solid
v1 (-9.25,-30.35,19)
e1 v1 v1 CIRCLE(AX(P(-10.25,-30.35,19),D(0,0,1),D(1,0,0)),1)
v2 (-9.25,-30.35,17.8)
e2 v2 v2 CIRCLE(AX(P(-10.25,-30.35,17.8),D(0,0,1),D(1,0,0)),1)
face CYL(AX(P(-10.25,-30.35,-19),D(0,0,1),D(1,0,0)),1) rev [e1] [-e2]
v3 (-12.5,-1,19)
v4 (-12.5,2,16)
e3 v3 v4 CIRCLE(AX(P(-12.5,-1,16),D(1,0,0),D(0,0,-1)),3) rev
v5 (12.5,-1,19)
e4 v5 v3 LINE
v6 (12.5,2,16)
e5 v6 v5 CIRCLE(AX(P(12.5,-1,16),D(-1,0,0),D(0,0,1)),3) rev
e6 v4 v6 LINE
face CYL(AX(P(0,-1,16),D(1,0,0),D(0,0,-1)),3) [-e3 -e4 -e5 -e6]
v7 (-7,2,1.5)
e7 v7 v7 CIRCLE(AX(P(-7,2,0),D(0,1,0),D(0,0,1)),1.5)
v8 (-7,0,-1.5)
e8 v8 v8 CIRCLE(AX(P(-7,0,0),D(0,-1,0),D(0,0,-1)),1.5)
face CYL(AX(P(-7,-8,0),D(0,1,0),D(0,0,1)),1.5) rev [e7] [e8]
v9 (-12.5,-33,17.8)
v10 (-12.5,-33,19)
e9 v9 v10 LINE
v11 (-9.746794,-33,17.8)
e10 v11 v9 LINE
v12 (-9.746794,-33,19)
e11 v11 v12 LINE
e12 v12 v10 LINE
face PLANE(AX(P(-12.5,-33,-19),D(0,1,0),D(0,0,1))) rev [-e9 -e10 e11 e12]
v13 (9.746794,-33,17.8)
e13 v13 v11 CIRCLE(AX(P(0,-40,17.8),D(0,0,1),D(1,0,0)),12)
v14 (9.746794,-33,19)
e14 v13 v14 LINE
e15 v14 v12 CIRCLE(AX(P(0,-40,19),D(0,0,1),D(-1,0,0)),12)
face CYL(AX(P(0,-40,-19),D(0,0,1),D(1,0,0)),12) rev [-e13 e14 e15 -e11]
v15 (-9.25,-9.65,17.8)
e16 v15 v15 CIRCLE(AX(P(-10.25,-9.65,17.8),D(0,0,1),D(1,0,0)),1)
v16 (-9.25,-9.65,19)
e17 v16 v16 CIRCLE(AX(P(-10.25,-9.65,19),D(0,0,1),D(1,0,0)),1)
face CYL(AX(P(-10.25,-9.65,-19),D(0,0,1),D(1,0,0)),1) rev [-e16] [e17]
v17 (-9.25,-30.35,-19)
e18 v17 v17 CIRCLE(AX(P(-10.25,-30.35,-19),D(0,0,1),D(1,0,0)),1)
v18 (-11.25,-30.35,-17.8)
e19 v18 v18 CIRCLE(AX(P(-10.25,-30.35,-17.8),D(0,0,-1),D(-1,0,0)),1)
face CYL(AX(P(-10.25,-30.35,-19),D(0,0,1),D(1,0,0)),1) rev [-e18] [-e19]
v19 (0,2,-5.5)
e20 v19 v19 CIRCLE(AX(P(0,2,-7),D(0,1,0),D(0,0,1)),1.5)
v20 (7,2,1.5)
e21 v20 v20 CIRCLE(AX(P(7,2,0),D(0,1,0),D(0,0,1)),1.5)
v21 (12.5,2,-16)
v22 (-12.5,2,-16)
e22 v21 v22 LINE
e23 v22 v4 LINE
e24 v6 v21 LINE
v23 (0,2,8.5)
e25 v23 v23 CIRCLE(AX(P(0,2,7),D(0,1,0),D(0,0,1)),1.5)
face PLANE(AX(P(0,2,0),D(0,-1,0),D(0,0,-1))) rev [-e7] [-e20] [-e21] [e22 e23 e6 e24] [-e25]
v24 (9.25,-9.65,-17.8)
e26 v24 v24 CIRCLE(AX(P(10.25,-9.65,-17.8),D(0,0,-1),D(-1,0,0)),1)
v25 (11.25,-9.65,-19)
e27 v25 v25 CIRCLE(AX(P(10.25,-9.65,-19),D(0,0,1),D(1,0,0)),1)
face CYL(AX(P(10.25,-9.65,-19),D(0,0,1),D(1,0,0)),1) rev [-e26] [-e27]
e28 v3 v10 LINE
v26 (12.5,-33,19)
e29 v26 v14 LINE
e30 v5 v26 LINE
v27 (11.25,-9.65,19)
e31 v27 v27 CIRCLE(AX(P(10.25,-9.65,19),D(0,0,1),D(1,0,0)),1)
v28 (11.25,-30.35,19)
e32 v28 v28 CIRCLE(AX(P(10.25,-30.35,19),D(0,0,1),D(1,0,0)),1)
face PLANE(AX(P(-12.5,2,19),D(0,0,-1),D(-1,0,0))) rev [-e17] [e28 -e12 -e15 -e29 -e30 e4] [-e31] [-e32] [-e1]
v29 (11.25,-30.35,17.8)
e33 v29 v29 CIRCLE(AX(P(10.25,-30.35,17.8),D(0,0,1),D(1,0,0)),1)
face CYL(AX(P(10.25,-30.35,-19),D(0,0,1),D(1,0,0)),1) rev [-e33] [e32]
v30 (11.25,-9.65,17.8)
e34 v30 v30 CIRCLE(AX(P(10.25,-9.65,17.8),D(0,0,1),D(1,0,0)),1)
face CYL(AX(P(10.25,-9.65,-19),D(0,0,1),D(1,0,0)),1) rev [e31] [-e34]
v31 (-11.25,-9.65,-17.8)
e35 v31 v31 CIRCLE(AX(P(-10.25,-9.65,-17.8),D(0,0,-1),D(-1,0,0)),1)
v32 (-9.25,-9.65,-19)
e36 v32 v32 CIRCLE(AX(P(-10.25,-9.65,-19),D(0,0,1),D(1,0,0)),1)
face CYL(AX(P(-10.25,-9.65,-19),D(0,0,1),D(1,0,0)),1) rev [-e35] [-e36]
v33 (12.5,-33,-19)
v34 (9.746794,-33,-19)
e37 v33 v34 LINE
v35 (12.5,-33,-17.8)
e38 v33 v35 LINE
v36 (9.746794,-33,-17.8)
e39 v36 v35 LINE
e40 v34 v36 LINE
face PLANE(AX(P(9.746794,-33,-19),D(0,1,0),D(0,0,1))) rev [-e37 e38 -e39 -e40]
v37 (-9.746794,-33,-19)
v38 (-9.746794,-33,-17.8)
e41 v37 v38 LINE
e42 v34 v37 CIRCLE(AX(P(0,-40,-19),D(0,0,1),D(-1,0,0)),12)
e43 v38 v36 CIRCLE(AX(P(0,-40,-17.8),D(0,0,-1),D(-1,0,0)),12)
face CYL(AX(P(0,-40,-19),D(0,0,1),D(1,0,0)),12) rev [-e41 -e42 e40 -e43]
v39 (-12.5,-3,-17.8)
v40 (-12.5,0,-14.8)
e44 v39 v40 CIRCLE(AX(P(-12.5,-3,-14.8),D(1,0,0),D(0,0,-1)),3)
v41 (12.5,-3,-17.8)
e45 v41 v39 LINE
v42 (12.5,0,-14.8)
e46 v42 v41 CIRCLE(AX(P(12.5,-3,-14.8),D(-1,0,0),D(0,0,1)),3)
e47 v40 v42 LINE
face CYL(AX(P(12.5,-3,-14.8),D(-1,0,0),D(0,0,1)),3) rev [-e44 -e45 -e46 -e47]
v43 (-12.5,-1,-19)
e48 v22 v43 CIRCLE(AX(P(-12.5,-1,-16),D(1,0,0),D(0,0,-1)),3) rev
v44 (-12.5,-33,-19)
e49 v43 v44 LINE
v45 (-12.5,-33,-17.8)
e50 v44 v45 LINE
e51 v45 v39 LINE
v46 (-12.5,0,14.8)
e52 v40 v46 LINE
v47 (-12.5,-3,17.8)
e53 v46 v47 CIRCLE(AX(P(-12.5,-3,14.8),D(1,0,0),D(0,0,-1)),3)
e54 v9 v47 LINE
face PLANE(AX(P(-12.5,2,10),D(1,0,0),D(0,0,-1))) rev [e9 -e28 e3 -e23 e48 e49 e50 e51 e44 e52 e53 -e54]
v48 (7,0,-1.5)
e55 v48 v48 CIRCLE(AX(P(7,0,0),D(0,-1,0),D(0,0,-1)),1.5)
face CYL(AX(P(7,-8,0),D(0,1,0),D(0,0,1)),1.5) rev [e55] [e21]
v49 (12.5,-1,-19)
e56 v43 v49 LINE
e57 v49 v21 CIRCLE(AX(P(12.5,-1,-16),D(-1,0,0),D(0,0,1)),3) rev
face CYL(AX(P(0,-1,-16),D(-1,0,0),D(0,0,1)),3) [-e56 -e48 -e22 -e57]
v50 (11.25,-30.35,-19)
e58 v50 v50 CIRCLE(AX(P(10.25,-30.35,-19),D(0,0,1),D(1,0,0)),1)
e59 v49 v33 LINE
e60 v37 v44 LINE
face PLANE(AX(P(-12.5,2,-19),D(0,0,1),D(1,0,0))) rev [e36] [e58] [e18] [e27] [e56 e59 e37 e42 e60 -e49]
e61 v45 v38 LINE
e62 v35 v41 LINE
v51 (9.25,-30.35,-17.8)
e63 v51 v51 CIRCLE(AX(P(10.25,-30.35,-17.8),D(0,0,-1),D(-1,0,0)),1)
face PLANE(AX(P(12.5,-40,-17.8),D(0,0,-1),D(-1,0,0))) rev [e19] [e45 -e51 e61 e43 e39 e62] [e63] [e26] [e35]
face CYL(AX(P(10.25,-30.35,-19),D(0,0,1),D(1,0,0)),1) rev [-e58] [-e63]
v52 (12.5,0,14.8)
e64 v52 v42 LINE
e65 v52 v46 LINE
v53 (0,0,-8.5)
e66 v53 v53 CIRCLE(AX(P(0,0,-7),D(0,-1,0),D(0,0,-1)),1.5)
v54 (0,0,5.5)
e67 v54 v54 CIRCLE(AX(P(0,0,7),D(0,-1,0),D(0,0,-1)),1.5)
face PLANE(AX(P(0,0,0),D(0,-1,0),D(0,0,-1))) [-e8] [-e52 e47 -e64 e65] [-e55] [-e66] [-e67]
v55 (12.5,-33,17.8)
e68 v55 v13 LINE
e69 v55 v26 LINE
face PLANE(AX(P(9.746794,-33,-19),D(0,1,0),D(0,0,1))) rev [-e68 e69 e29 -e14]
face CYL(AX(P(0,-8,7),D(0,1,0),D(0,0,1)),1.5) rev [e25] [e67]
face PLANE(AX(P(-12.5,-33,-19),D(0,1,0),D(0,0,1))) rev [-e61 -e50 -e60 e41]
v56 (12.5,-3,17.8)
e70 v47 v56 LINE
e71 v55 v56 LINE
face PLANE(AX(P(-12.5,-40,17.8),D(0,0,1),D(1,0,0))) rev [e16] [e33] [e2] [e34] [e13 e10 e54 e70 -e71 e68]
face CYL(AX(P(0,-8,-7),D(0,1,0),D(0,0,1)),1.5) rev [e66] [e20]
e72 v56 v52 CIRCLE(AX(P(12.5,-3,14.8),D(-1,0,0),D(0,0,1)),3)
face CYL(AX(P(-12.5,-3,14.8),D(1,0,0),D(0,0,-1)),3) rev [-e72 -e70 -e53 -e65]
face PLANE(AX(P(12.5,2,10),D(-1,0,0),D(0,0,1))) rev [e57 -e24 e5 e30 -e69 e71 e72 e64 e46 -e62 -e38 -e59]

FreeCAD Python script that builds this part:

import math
import FreeCAD as App
import Part
import Sketcher

V = App.Vector
Q = App.Units.Quantity


def edges_at(feature, points):
    """Names of the edges that pass closest to the given points."""
    edges = feature.Shape.Edges
    near = lambda p: min(range(len(edges)), key=lambda i: edges[i].distToShape(Part.Vertex(*p))[0])
    return sorted({f"Edge{near(p) + 1}" for p in points})

doc = App.newDocument("Part")
params = doc.addObject("Spreadsheet::Sheet", "Params")
for row, (alias, value) in enumerate([
    ("sketch1_width", "8 mm"),
    ("sketch1_width2", "25 mm"),
    ("sketch1_height", "9 mm"),
    ("sketch1_height2", "20 mm"),
    ("pad1_length", "2 mm"),
    ("sketch2_width", "25 mm"),
    ("sketch2_height", "1.2 mm"),
    ("pad2_length", "40 mm"),
    ("fillet_radius", "3 mm"),
    ("sketch3_diameter", "2 mm"),
    ("sketch3_radius", "12 mm"),
    ("sketch3_width", "25 mm"),
    ("sketch3_height", "7 mm"),
    ("sketch4_width", "25 mm"),
    ("sketch4_height", "38 mm"),
    ("sketch4_width2", "56.19 mm"),
    ("sketch4_height2", "53.19 mm"),
    ("pocket2_length", "10 mm"),
    ("sketch5_diameter", "3 mm"),
    ("pocket3_length", "10 mm"),
], start=1):
    params.set(f"A{row}", alias)
    params.set(f"B{row}", "=" + value)
    params.setAlias(f"B{row}", alias)

body = doc.addObject("PartDesign::Body", "Body")

# Sketch on XZ plane
sketch1 = doc.addObject("Sketcher::SketchObject", "Sketch")
body.addObject(sketch1)
sketch1.AttachmentSupport = (doc.XZ_Plane, [""])
sketch1.MapMode = "FlatFace"
sketch1.addGeometry([
    Part.LineSegment(V(12, 19, 0), V(12, 10, 0)),  # 0
    Part.LineSegment(V(12, 10, 0), V(20, 10, 0)),  # 1
    Part.LineSegment(V(20, 10, 0), V(20, -10, 0)),  # 2
    Part.LineSegment(V(20, -10, 0), V(12, -10, 0)),  # 3
    Part.LineSegment(V(12, -10, 0), V(12, -19, 0)),  # 4
    Part.LineSegment(V(12, -19, 0), V(-12, -19, 0)),  # 5
    Part.LineSegment(V(-12, -19, 0), V(-12, -10, 0)),  # 6
    Part.LineSegment(V(-12, -10, 0), V(-20, -10, 0)),  # 7
    Part.LineSegment(V(-20, -10, 0), V(-20, 10, 0)),  # 8
    Part.LineSegment(V(-20, 10, 0), V(-12, 10, 0)),  # 9
    Part.LineSegment(V(-12, 10, 0), V(-12, 19, 0)),  # 10
    Part.LineSegment(V(-12, 19, 0), V(12, 19, 0)),  # 11
], False)
sketch1.addConstraint([
    Sketcher.Constraint("Coincident", 0, 2, 1, 1),
    Sketcher.Constraint("Coincident", 1, 2, 2, 1),
    Sketcher.Constraint("Coincident", 2, 2, 3, 1),
    Sketcher.Constraint("Coincident", 3, 2, 4, 1),
    Sketcher.Constraint("Coincident", 4, 2, 5, 1),
    Sketcher.Constraint("Coincident", 5, 2, 6, 1),
    Sketcher.Constraint("Coincident", 6, 2, 7, 1),
    Sketcher.Constraint("Coincident", 7, 2, 8, 1),
    Sketcher.Constraint("Coincident", 8, 2, 9, 1),
    Sketcher.Constraint("Coincident", 9, 2, 10, 1),
    Sketcher.Constraint("Coincident", 10, 2, 11, 1),
    Sketcher.Constraint("Coincident", 11, 2, 0, 1),
    Sketcher.Constraint("Vertical", 0),
    Sketcher.Constraint("Horizontal", 1),
    Sketcher.Constraint("Vertical", 2),
    Sketcher.Constraint("Horizontal", 3),
    Sketcher.Constraint("Vertical", 4),
    Sketcher.Constraint("Horizontal", 5),
    Sketcher.Constraint("Vertical", 6),
    Sketcher.Constraint("Horizontal", 7),
    Sketcher.Constraint("Vertical", 8),
    Sketcher.Constraint("Horizontal", 9),
    Sketcher.Constraint("Vertical", 10),
    Sketcher.Constraint("Horizontal", 11),
    Sketcher.Constraint("Symmetric", 0, 2, 6, 2, -1, 1),
    Sketcher.Constraint("Symmetric", 2, 2, 8, 2, -1, 1),
    Sketcher.Constraint("Symmetric", 4, 2, 10, 2, -1, 1),
    Sketcher.Constraint("Symmetric", 3, 2, 6, 2, -2),
    Sketcher.Constraint("DistanceX", 1, 1, 1, 2, Q("8 mm")),
    Sketcher.Constraint("DistanceX", 5, 2, 5, 1, Q("25 mm")),
    Sketcher.Constraint("DistanceY", 0, 2, 0, 1, Q("9 mm")),
    Sketcher.Constraint("DistanceY", 2, 2, 2, 1, Q("20 mm")),
])
sketch1.setExpression("Constraints[28]", "Params.sketch1_width")
sketch1.setExpression("Constraints[29]", "Params.sketch1_width2")
sketch1.setExpression("Constraints[30]", "Params.sketch1_height")
sketch1.setExpression("Constraints[31]", "Params.sketch1_height2")
pad1 = doc.addObject("PartDesign::Pad", "Pad")
body.addObject(pad1)
pad1.Profile = sketch1
pad1.setExpression("Length", "Params.pad1_length")
pad1.Reversed = True

# Sketch on XZ plane
sketch2 = doc.addObject("Sketcher::SketchObject", "Sketch001")
body.addObject(sketch2)
sketch2.AttachmentSupport = (doc.XZ_Plane, [""])
sketch2.MapMode = "FlatFace"
sketch2.addGeometry([
    Part.LineSegment(V(-12.5, 19, 0), V(-12.5, 17.8, 0)),  # 0
    Part.LineSegment(V(-12.5, 17.8, 0), V(12.5, 17.8, 0)),  # 1
    Part.LineSegment(V(12.5, 17.8, 0), V(12.5, 19, 0)),  # 2
    Part.LineSegment(V(12.5, 19, 0), V(-12.5, 19, 0)),  # 3
    Part.LineSegment(V(-12.5, -17.8, 0), V(-12.5, -19, 0)),  # 4
    Part.LineSegment(V(-12.5, -19, 0), V(12.5, -19, 0)),  # 5
    Part.LineSegment(V(12.5, -19, 0), V(12.5, -17.8, 0)),  # 6
    Part.LineSegment(V(12.5, -17.8, 0), V(-12.5, -17.8, 0)),  # 7
], False)
sketch2.addConstraint([
    Sketcher.Constraint("Coincident", 0, 2, 1, 1),
    Sketcher.Constraint("Coincident", 1, 2, 2, 1),
    Sketcher.Constraint("Coincident", 2, 2, 3, 1),
    Sketcher.Constraint("Coincident", 3, 2, 0, 1),
    Sketcher.Constraint("Coincident", 4, 2, 5, 1),
    Sketcher.Constraint("Coincident", 5, 2, 6, 1),
    Sketcher.Constraint("Coincident", 6, 2, 7, 1),
    Sketcher.Constraint("Coincident", 7, 2, 4, 1),
    Sketcher.Constraint("Vertical", 0),
    Sketcher.Constraint("Horizontal", 1),
    Sketcher.Constraint("Vertical", 2),
    Sketcher.Constraint("Horizontal", 3),
    Sketcher.Constraint("Vertical", 4),
    Sketcher.Constraint("Horizontal", 5),
    Sketcher.Constraint("Vertical", 6),
    Sketcher.Constraint("Horizontal", 7),
    Sketcher.Constraint("Symmetric", 2, 2, 4, 2, -1, 1),
    Sketcher.Constraint("Symmetric", 0, 2, 6, 2, -1, 1),
    Sketcher.Constraint("Vertical", 3, 2, 4, 2),
    Sketcher.Constraint("DistanceX", 1, 1, 1, 2, Q("25 mm")),
    Sketcher.Constraint("DistanceY", 0, 2, 0, 1, Q("1.2 mm")),
    Sketcher.Constraint("DistanceY", -1, 1, 2, 2, Q("19 mm")),
])
sketch2.setExpression("Constraints[19]", "Params.sketch2_width")
sketch2.setExpression("Constraints[20]", "Params.sketch2_height")
pad2 = doc.addObject("PartDesign::Pad", "Pad001")
body.addObject(pad2)
pad2.Profile = sketch2
pad2.setExpression("Length", "Params.pad2_length")
doc.recompute()

fillet = doc.addObject("PartDesign::Fillet", "Fillet")
body.addObject(fillet)
fillet.Base = (pad2, edges_at(pad2, [
    (0, 2, -19),
    (0, 2, 19),
    (0, 0, 17.8),
    (0, 0, -17.8),
]))
fillet.setExpression("Radius", "Params.fillet_radius")

# Sketch on XY plane
sketch3 = doc.addObject("Sketcher::SketchObject", "Sketch002")
body.addObject(sketch3)
sketch3.AttachmentSupport = (doc.XY_Plane, [""])
sketch3.MapMode = "FlatFace"
sketch3.AttachmentOffset = App.Placement(V(0, 0, 19), App.Rotation())
sketch3.addGeometry([
    Part.Circle(V(-10.2, -30.4, 0), V(0, 0, 1), 1),  # 0
    Part.Circle(V(-10.2, -9.7, 0), V(0, 0, 1), 1),  # 1
    Part.Circle(V(10.2, -9.7, 0), V(0, 0, 1), 1),  # 2
    Part.Circle(V(10.2, -30.4, 0), V(0, 0, 1), 1),  # 3
    Part.LineSegment(V(-9.7, -33, 0), V(-12.5, -33, 0)),  # 4
    Part.LineSegment(V(-12.5, -33, 0), V(-12.5, -40, 0)),  # 5
    Part.LineSegment(V(-12.5, -40, 0), V(12.5, -40, 0)),  # 6
    Part.LineSegment(V(12.5, -40, 0), V(12.5, -33, 0)),  # 7
    Part.LineSegment(V(12.5, -33, 0), V(9.7, -33, 0)),  # 8
    Part.ArcOfCircle(Part.Circle(V(0, -40, 0), V(0, 0, 1), 12), math.radians(36), math.radians(144)),  # 9
], False)
sketch3.addConstraint([
    Sketcher.Constraint("Coincident", 4, 2, 5, 1),
    Sketcher.Constraint("Coincident", 5, 2, 6, 1),
    Sketcher.Constraint("Coincident", 6, 2, 7, 1),
    Sketcher.Constraint("Coincident", 7, 2, 8, 1),
    Sketcher.Constraint("Coincident", 8, 2, 9, 1),
    Sketcher.Constraint("Coincident", 9, 2, 4, 1),
    Sketcher.Constraint("Horizontal", 4),
    Sketcher.Constraint("Vertical", 5),
    Sketcher.Constraint("Horizontal", 6),
    Sketcher.Constraint("Vertical", 7),
    Sketcher.Constraint("Horizontal", 8),
    Sketcher.Constraint("Equal", 0, 1),
    Sketcher.Constraint("Equal", 1, 2),
    Sketcher.Constraint("Equal", 2, 3),
    Sketcher.Constraint("Symmetric", 1, 3, 2, 3, -2),
    Sketcher.Constraint("Symmetric", 0, 3, 3, 3, -2),
    Sketcher.Constraint("Symmetric", 4, 2, 7, 2, -2),
    Sketcher.Constraint("PointOnObject", 9, 3, -2),
    Sketcher.Constraint("Horizontal", 9, 3, 5, 2),
    Sketcher.Constraint("Vertical", 0, 3, 1, 3),
    Sketcher.Constraint("Diameter", 0, Q("2 mm")),
    Sketcher.Constraint("Radius", 9, Q("12 mm")),
    Sketcher.Constraint("DistanceX", 6, 1, 6, 2, Q("25 mm")),
    Sketcher.Constraint("DistanceY", 5, 2, 5, 1, Q("7 mm")),
    Sketcher.Constraint("DistanceY", 9, 3, -1, 1, Q("40 mm")),
    Sketcher.Constraint("DistanceY", 0, 3, 1, 3, Q("20.7 mm")),
    Sketcher.Constraint("DistanceX", 1, 3, 2, 3, Q("20.5 mm")),
    Sketcher.Constraint("DistanceY", 0, 3, -1, 1, Q("30.35 mm")),
])
sketch3.setExpression("Constraints[20]", "Params.sketch3_diameter")
sketch3.setExpression("Constraints[21]", "Params.sketch3_radius")
sketch3.setExpression("Constraints[22]", "Params.sketch3_width")
sketch3.setExpression("Constraints[23]", "Params.sketch3_height")
pocket1 = doc.addObject("PartDesign::Pocket", "Pocket")
body.addObject(pocket1)
pocket1.Profile = sketch3
pocket1.Type = "ThroughAll"

# Sketch on XZ plane
sketch4 = doc.addObject("Sketcher::SketchObject", "Sketch003")
body.addObject(sketch4)
sketch4.AttachmentSupport = (doc.XZ_Plane, [""])
sketch4.MapMode = "FlatFace"
sketch4.AttachmentOffset = App.Placement(V(0, 0, -2), App.Rotation())
sketch4.addGeometry([
    Part.LineSegment(V(-28, -27, 0), V(-28, 27, 0)),  # 0
    Part.LineSegment(V(-28, 27, 0), V(28, 27, 0)),  # 1
    Part.LineSegment(V(28, 27, 0), V(28, -27, 0)),  # 2
    Part.LineSegment(V(28, -27, 0), V(-28, -27, 0)),  # 3
    Part.LineSegment(V(12, 19, 0), V(-12, 19, 0)),  # 4
    Part.LineSegment(V(-12, 19, 0), V(-12, -19, 0)),  # 5
    Part.LineSegment(V(-12, -19, 0), V(12, -19, 0)),  # 6
    Part.LineSegment(V(12, -19, 0), V(12, 19, 0)),  # 7
], False)
sketch4.addConstraint([
    Sketcher.Constraint("Coincident", 0, 2, 1, 1),
    Sketcher.Constraint("Coincident", 1, 2, 2, 1),
    Sketcher.Constraint("Coincident", 2, 2, 3, 1),
    Sketcher.Constraint("Coincident", 3, 2, 0, 1),
    Sketcher.Constraint("Coincident", 4, 2, 5, 1),
    Sketcher.Constraint("Coincident", 5, 2, 6, 1),
    Sketcher.Constraint("Coincident", 6, 2, 7, 1),
    Sketcher.Constraint("Coincident", 7, 2, 4, 1),
    Sketcher.Constraint("Vertical", 0),
    Sketcher.Constraint("Horizontal", 1),
    Sketcher.Constraint("Vertical", 2),
    Sketcher.Constraint("Horizontal", 3),
    Sketcher.Constraint("Horizontal", 4),
    Sketcher.Constraint("Vertical", 5),
    Sketcher.Constraint("Horizontal", 6),
    Sketcher.Constraint("Vertical", 7),
    Sketcher.Constraint("Symmetric", 0, 2, 2, 2, -1, 1),
    Sketcher.Constraint("Symmetric", 4, 2, 6, 2, -1, 1),
    Sketcher.Constraint("DistanceX", 4, 2, 4, 1, Q("25 mm")),
    Sketcher.Constraint("DistanceY", 5, 2, 5, 1, Q("38 mm")),
    Sketcher.Constraint("DistanceX", 1, 1, 1, 2, Q("56.19 mm")),
    Sketcher.Constraint("DistanceY", 0, 1, 0, 2, Q("53.19 mm")),
])
sketch4.setExpression("Constraints[18]", "Params.sketch4_width")
sketch4.setExpression("Constraints[19]", "Params.sketch4_height")
sketch4.setExpression("Constraints[20]", "Params.sketch4_width2")
sketch4.setExpression("Constraints[21]", "Params.sketch4_height2")
pocket2 = doc.addObject("PartDesign::Pocket", "Pocket001")
body.addObject(pocket2)
pocket2.Profile = sketch4
pocket2.setExpression("Length", "Params.pocket2_length")
pocket2.Reversed = True

# Sketch on XZ plane
sketch5 = doc.addObject("Sketcher::SketchObject", "Sketch004")
body.addObject(sketch5)
sketch5.AttachmentSupport = (doc.XZ_Plane, [""])
sketch5.MapMode = "FlatFace"
sketch5.AttachmentOffset = App.Placement(V(0, 0, -2), App.Rotation())
sketch5.addGeometry([
    Part.Circle(V(0, 7, 0), V(0, 0, 1), 1.5),
    Part.Circle(V(-7, 0, 0), V(0, 0, 1), 1.5),
    Part.Circle(V(0, -7, 0), V(0, 0, 1), 1.5),
    Part.Circle(V(7, 0, 0), V(0, 0, 1), 1.5),
], False)
sketch5.addConstraint([
    Sketcher.Constraint("Equal", 0, 1),
    Sketcher.Constraint("Equal", 1, 2),
    Sketcher.Constraint("Equal", 2, 3),
    Sketcher.Constraint("Symmetric", 0, 3, 2, 3, -1, 1),
    Sketcher.Constraint("Symmetric", 1, 3, 3, 3, -1, 1),
    Sketcher.Constraint("PointOnObject", 0, 3, -2),
    Sketcher.Constraint("PointOnObject", 1, 3, -1),
    Sketcher.Constraint("Diameter", 0, Q("3 mm")),
    Sketcher.Constraint("DistanceY", -1, 1, 0, 3, Q("7 mm")),
    Sketcher.Constraint("DistanceX", 1, 3, -1, 1, Q("7 mm")),
])
sketch5.setExpression("Constraints[7]", "Params.sketch5_diameter")
pocket3 = doc.addObject("PartDesign::Pocket", "Pocket002")
body.addObject(pocket3)
pocket3.Profile = sketch5
pocket3.setExpression("Length", "Params.pocket3_length")
pocket3.Reversed = True

doc.recompute()
